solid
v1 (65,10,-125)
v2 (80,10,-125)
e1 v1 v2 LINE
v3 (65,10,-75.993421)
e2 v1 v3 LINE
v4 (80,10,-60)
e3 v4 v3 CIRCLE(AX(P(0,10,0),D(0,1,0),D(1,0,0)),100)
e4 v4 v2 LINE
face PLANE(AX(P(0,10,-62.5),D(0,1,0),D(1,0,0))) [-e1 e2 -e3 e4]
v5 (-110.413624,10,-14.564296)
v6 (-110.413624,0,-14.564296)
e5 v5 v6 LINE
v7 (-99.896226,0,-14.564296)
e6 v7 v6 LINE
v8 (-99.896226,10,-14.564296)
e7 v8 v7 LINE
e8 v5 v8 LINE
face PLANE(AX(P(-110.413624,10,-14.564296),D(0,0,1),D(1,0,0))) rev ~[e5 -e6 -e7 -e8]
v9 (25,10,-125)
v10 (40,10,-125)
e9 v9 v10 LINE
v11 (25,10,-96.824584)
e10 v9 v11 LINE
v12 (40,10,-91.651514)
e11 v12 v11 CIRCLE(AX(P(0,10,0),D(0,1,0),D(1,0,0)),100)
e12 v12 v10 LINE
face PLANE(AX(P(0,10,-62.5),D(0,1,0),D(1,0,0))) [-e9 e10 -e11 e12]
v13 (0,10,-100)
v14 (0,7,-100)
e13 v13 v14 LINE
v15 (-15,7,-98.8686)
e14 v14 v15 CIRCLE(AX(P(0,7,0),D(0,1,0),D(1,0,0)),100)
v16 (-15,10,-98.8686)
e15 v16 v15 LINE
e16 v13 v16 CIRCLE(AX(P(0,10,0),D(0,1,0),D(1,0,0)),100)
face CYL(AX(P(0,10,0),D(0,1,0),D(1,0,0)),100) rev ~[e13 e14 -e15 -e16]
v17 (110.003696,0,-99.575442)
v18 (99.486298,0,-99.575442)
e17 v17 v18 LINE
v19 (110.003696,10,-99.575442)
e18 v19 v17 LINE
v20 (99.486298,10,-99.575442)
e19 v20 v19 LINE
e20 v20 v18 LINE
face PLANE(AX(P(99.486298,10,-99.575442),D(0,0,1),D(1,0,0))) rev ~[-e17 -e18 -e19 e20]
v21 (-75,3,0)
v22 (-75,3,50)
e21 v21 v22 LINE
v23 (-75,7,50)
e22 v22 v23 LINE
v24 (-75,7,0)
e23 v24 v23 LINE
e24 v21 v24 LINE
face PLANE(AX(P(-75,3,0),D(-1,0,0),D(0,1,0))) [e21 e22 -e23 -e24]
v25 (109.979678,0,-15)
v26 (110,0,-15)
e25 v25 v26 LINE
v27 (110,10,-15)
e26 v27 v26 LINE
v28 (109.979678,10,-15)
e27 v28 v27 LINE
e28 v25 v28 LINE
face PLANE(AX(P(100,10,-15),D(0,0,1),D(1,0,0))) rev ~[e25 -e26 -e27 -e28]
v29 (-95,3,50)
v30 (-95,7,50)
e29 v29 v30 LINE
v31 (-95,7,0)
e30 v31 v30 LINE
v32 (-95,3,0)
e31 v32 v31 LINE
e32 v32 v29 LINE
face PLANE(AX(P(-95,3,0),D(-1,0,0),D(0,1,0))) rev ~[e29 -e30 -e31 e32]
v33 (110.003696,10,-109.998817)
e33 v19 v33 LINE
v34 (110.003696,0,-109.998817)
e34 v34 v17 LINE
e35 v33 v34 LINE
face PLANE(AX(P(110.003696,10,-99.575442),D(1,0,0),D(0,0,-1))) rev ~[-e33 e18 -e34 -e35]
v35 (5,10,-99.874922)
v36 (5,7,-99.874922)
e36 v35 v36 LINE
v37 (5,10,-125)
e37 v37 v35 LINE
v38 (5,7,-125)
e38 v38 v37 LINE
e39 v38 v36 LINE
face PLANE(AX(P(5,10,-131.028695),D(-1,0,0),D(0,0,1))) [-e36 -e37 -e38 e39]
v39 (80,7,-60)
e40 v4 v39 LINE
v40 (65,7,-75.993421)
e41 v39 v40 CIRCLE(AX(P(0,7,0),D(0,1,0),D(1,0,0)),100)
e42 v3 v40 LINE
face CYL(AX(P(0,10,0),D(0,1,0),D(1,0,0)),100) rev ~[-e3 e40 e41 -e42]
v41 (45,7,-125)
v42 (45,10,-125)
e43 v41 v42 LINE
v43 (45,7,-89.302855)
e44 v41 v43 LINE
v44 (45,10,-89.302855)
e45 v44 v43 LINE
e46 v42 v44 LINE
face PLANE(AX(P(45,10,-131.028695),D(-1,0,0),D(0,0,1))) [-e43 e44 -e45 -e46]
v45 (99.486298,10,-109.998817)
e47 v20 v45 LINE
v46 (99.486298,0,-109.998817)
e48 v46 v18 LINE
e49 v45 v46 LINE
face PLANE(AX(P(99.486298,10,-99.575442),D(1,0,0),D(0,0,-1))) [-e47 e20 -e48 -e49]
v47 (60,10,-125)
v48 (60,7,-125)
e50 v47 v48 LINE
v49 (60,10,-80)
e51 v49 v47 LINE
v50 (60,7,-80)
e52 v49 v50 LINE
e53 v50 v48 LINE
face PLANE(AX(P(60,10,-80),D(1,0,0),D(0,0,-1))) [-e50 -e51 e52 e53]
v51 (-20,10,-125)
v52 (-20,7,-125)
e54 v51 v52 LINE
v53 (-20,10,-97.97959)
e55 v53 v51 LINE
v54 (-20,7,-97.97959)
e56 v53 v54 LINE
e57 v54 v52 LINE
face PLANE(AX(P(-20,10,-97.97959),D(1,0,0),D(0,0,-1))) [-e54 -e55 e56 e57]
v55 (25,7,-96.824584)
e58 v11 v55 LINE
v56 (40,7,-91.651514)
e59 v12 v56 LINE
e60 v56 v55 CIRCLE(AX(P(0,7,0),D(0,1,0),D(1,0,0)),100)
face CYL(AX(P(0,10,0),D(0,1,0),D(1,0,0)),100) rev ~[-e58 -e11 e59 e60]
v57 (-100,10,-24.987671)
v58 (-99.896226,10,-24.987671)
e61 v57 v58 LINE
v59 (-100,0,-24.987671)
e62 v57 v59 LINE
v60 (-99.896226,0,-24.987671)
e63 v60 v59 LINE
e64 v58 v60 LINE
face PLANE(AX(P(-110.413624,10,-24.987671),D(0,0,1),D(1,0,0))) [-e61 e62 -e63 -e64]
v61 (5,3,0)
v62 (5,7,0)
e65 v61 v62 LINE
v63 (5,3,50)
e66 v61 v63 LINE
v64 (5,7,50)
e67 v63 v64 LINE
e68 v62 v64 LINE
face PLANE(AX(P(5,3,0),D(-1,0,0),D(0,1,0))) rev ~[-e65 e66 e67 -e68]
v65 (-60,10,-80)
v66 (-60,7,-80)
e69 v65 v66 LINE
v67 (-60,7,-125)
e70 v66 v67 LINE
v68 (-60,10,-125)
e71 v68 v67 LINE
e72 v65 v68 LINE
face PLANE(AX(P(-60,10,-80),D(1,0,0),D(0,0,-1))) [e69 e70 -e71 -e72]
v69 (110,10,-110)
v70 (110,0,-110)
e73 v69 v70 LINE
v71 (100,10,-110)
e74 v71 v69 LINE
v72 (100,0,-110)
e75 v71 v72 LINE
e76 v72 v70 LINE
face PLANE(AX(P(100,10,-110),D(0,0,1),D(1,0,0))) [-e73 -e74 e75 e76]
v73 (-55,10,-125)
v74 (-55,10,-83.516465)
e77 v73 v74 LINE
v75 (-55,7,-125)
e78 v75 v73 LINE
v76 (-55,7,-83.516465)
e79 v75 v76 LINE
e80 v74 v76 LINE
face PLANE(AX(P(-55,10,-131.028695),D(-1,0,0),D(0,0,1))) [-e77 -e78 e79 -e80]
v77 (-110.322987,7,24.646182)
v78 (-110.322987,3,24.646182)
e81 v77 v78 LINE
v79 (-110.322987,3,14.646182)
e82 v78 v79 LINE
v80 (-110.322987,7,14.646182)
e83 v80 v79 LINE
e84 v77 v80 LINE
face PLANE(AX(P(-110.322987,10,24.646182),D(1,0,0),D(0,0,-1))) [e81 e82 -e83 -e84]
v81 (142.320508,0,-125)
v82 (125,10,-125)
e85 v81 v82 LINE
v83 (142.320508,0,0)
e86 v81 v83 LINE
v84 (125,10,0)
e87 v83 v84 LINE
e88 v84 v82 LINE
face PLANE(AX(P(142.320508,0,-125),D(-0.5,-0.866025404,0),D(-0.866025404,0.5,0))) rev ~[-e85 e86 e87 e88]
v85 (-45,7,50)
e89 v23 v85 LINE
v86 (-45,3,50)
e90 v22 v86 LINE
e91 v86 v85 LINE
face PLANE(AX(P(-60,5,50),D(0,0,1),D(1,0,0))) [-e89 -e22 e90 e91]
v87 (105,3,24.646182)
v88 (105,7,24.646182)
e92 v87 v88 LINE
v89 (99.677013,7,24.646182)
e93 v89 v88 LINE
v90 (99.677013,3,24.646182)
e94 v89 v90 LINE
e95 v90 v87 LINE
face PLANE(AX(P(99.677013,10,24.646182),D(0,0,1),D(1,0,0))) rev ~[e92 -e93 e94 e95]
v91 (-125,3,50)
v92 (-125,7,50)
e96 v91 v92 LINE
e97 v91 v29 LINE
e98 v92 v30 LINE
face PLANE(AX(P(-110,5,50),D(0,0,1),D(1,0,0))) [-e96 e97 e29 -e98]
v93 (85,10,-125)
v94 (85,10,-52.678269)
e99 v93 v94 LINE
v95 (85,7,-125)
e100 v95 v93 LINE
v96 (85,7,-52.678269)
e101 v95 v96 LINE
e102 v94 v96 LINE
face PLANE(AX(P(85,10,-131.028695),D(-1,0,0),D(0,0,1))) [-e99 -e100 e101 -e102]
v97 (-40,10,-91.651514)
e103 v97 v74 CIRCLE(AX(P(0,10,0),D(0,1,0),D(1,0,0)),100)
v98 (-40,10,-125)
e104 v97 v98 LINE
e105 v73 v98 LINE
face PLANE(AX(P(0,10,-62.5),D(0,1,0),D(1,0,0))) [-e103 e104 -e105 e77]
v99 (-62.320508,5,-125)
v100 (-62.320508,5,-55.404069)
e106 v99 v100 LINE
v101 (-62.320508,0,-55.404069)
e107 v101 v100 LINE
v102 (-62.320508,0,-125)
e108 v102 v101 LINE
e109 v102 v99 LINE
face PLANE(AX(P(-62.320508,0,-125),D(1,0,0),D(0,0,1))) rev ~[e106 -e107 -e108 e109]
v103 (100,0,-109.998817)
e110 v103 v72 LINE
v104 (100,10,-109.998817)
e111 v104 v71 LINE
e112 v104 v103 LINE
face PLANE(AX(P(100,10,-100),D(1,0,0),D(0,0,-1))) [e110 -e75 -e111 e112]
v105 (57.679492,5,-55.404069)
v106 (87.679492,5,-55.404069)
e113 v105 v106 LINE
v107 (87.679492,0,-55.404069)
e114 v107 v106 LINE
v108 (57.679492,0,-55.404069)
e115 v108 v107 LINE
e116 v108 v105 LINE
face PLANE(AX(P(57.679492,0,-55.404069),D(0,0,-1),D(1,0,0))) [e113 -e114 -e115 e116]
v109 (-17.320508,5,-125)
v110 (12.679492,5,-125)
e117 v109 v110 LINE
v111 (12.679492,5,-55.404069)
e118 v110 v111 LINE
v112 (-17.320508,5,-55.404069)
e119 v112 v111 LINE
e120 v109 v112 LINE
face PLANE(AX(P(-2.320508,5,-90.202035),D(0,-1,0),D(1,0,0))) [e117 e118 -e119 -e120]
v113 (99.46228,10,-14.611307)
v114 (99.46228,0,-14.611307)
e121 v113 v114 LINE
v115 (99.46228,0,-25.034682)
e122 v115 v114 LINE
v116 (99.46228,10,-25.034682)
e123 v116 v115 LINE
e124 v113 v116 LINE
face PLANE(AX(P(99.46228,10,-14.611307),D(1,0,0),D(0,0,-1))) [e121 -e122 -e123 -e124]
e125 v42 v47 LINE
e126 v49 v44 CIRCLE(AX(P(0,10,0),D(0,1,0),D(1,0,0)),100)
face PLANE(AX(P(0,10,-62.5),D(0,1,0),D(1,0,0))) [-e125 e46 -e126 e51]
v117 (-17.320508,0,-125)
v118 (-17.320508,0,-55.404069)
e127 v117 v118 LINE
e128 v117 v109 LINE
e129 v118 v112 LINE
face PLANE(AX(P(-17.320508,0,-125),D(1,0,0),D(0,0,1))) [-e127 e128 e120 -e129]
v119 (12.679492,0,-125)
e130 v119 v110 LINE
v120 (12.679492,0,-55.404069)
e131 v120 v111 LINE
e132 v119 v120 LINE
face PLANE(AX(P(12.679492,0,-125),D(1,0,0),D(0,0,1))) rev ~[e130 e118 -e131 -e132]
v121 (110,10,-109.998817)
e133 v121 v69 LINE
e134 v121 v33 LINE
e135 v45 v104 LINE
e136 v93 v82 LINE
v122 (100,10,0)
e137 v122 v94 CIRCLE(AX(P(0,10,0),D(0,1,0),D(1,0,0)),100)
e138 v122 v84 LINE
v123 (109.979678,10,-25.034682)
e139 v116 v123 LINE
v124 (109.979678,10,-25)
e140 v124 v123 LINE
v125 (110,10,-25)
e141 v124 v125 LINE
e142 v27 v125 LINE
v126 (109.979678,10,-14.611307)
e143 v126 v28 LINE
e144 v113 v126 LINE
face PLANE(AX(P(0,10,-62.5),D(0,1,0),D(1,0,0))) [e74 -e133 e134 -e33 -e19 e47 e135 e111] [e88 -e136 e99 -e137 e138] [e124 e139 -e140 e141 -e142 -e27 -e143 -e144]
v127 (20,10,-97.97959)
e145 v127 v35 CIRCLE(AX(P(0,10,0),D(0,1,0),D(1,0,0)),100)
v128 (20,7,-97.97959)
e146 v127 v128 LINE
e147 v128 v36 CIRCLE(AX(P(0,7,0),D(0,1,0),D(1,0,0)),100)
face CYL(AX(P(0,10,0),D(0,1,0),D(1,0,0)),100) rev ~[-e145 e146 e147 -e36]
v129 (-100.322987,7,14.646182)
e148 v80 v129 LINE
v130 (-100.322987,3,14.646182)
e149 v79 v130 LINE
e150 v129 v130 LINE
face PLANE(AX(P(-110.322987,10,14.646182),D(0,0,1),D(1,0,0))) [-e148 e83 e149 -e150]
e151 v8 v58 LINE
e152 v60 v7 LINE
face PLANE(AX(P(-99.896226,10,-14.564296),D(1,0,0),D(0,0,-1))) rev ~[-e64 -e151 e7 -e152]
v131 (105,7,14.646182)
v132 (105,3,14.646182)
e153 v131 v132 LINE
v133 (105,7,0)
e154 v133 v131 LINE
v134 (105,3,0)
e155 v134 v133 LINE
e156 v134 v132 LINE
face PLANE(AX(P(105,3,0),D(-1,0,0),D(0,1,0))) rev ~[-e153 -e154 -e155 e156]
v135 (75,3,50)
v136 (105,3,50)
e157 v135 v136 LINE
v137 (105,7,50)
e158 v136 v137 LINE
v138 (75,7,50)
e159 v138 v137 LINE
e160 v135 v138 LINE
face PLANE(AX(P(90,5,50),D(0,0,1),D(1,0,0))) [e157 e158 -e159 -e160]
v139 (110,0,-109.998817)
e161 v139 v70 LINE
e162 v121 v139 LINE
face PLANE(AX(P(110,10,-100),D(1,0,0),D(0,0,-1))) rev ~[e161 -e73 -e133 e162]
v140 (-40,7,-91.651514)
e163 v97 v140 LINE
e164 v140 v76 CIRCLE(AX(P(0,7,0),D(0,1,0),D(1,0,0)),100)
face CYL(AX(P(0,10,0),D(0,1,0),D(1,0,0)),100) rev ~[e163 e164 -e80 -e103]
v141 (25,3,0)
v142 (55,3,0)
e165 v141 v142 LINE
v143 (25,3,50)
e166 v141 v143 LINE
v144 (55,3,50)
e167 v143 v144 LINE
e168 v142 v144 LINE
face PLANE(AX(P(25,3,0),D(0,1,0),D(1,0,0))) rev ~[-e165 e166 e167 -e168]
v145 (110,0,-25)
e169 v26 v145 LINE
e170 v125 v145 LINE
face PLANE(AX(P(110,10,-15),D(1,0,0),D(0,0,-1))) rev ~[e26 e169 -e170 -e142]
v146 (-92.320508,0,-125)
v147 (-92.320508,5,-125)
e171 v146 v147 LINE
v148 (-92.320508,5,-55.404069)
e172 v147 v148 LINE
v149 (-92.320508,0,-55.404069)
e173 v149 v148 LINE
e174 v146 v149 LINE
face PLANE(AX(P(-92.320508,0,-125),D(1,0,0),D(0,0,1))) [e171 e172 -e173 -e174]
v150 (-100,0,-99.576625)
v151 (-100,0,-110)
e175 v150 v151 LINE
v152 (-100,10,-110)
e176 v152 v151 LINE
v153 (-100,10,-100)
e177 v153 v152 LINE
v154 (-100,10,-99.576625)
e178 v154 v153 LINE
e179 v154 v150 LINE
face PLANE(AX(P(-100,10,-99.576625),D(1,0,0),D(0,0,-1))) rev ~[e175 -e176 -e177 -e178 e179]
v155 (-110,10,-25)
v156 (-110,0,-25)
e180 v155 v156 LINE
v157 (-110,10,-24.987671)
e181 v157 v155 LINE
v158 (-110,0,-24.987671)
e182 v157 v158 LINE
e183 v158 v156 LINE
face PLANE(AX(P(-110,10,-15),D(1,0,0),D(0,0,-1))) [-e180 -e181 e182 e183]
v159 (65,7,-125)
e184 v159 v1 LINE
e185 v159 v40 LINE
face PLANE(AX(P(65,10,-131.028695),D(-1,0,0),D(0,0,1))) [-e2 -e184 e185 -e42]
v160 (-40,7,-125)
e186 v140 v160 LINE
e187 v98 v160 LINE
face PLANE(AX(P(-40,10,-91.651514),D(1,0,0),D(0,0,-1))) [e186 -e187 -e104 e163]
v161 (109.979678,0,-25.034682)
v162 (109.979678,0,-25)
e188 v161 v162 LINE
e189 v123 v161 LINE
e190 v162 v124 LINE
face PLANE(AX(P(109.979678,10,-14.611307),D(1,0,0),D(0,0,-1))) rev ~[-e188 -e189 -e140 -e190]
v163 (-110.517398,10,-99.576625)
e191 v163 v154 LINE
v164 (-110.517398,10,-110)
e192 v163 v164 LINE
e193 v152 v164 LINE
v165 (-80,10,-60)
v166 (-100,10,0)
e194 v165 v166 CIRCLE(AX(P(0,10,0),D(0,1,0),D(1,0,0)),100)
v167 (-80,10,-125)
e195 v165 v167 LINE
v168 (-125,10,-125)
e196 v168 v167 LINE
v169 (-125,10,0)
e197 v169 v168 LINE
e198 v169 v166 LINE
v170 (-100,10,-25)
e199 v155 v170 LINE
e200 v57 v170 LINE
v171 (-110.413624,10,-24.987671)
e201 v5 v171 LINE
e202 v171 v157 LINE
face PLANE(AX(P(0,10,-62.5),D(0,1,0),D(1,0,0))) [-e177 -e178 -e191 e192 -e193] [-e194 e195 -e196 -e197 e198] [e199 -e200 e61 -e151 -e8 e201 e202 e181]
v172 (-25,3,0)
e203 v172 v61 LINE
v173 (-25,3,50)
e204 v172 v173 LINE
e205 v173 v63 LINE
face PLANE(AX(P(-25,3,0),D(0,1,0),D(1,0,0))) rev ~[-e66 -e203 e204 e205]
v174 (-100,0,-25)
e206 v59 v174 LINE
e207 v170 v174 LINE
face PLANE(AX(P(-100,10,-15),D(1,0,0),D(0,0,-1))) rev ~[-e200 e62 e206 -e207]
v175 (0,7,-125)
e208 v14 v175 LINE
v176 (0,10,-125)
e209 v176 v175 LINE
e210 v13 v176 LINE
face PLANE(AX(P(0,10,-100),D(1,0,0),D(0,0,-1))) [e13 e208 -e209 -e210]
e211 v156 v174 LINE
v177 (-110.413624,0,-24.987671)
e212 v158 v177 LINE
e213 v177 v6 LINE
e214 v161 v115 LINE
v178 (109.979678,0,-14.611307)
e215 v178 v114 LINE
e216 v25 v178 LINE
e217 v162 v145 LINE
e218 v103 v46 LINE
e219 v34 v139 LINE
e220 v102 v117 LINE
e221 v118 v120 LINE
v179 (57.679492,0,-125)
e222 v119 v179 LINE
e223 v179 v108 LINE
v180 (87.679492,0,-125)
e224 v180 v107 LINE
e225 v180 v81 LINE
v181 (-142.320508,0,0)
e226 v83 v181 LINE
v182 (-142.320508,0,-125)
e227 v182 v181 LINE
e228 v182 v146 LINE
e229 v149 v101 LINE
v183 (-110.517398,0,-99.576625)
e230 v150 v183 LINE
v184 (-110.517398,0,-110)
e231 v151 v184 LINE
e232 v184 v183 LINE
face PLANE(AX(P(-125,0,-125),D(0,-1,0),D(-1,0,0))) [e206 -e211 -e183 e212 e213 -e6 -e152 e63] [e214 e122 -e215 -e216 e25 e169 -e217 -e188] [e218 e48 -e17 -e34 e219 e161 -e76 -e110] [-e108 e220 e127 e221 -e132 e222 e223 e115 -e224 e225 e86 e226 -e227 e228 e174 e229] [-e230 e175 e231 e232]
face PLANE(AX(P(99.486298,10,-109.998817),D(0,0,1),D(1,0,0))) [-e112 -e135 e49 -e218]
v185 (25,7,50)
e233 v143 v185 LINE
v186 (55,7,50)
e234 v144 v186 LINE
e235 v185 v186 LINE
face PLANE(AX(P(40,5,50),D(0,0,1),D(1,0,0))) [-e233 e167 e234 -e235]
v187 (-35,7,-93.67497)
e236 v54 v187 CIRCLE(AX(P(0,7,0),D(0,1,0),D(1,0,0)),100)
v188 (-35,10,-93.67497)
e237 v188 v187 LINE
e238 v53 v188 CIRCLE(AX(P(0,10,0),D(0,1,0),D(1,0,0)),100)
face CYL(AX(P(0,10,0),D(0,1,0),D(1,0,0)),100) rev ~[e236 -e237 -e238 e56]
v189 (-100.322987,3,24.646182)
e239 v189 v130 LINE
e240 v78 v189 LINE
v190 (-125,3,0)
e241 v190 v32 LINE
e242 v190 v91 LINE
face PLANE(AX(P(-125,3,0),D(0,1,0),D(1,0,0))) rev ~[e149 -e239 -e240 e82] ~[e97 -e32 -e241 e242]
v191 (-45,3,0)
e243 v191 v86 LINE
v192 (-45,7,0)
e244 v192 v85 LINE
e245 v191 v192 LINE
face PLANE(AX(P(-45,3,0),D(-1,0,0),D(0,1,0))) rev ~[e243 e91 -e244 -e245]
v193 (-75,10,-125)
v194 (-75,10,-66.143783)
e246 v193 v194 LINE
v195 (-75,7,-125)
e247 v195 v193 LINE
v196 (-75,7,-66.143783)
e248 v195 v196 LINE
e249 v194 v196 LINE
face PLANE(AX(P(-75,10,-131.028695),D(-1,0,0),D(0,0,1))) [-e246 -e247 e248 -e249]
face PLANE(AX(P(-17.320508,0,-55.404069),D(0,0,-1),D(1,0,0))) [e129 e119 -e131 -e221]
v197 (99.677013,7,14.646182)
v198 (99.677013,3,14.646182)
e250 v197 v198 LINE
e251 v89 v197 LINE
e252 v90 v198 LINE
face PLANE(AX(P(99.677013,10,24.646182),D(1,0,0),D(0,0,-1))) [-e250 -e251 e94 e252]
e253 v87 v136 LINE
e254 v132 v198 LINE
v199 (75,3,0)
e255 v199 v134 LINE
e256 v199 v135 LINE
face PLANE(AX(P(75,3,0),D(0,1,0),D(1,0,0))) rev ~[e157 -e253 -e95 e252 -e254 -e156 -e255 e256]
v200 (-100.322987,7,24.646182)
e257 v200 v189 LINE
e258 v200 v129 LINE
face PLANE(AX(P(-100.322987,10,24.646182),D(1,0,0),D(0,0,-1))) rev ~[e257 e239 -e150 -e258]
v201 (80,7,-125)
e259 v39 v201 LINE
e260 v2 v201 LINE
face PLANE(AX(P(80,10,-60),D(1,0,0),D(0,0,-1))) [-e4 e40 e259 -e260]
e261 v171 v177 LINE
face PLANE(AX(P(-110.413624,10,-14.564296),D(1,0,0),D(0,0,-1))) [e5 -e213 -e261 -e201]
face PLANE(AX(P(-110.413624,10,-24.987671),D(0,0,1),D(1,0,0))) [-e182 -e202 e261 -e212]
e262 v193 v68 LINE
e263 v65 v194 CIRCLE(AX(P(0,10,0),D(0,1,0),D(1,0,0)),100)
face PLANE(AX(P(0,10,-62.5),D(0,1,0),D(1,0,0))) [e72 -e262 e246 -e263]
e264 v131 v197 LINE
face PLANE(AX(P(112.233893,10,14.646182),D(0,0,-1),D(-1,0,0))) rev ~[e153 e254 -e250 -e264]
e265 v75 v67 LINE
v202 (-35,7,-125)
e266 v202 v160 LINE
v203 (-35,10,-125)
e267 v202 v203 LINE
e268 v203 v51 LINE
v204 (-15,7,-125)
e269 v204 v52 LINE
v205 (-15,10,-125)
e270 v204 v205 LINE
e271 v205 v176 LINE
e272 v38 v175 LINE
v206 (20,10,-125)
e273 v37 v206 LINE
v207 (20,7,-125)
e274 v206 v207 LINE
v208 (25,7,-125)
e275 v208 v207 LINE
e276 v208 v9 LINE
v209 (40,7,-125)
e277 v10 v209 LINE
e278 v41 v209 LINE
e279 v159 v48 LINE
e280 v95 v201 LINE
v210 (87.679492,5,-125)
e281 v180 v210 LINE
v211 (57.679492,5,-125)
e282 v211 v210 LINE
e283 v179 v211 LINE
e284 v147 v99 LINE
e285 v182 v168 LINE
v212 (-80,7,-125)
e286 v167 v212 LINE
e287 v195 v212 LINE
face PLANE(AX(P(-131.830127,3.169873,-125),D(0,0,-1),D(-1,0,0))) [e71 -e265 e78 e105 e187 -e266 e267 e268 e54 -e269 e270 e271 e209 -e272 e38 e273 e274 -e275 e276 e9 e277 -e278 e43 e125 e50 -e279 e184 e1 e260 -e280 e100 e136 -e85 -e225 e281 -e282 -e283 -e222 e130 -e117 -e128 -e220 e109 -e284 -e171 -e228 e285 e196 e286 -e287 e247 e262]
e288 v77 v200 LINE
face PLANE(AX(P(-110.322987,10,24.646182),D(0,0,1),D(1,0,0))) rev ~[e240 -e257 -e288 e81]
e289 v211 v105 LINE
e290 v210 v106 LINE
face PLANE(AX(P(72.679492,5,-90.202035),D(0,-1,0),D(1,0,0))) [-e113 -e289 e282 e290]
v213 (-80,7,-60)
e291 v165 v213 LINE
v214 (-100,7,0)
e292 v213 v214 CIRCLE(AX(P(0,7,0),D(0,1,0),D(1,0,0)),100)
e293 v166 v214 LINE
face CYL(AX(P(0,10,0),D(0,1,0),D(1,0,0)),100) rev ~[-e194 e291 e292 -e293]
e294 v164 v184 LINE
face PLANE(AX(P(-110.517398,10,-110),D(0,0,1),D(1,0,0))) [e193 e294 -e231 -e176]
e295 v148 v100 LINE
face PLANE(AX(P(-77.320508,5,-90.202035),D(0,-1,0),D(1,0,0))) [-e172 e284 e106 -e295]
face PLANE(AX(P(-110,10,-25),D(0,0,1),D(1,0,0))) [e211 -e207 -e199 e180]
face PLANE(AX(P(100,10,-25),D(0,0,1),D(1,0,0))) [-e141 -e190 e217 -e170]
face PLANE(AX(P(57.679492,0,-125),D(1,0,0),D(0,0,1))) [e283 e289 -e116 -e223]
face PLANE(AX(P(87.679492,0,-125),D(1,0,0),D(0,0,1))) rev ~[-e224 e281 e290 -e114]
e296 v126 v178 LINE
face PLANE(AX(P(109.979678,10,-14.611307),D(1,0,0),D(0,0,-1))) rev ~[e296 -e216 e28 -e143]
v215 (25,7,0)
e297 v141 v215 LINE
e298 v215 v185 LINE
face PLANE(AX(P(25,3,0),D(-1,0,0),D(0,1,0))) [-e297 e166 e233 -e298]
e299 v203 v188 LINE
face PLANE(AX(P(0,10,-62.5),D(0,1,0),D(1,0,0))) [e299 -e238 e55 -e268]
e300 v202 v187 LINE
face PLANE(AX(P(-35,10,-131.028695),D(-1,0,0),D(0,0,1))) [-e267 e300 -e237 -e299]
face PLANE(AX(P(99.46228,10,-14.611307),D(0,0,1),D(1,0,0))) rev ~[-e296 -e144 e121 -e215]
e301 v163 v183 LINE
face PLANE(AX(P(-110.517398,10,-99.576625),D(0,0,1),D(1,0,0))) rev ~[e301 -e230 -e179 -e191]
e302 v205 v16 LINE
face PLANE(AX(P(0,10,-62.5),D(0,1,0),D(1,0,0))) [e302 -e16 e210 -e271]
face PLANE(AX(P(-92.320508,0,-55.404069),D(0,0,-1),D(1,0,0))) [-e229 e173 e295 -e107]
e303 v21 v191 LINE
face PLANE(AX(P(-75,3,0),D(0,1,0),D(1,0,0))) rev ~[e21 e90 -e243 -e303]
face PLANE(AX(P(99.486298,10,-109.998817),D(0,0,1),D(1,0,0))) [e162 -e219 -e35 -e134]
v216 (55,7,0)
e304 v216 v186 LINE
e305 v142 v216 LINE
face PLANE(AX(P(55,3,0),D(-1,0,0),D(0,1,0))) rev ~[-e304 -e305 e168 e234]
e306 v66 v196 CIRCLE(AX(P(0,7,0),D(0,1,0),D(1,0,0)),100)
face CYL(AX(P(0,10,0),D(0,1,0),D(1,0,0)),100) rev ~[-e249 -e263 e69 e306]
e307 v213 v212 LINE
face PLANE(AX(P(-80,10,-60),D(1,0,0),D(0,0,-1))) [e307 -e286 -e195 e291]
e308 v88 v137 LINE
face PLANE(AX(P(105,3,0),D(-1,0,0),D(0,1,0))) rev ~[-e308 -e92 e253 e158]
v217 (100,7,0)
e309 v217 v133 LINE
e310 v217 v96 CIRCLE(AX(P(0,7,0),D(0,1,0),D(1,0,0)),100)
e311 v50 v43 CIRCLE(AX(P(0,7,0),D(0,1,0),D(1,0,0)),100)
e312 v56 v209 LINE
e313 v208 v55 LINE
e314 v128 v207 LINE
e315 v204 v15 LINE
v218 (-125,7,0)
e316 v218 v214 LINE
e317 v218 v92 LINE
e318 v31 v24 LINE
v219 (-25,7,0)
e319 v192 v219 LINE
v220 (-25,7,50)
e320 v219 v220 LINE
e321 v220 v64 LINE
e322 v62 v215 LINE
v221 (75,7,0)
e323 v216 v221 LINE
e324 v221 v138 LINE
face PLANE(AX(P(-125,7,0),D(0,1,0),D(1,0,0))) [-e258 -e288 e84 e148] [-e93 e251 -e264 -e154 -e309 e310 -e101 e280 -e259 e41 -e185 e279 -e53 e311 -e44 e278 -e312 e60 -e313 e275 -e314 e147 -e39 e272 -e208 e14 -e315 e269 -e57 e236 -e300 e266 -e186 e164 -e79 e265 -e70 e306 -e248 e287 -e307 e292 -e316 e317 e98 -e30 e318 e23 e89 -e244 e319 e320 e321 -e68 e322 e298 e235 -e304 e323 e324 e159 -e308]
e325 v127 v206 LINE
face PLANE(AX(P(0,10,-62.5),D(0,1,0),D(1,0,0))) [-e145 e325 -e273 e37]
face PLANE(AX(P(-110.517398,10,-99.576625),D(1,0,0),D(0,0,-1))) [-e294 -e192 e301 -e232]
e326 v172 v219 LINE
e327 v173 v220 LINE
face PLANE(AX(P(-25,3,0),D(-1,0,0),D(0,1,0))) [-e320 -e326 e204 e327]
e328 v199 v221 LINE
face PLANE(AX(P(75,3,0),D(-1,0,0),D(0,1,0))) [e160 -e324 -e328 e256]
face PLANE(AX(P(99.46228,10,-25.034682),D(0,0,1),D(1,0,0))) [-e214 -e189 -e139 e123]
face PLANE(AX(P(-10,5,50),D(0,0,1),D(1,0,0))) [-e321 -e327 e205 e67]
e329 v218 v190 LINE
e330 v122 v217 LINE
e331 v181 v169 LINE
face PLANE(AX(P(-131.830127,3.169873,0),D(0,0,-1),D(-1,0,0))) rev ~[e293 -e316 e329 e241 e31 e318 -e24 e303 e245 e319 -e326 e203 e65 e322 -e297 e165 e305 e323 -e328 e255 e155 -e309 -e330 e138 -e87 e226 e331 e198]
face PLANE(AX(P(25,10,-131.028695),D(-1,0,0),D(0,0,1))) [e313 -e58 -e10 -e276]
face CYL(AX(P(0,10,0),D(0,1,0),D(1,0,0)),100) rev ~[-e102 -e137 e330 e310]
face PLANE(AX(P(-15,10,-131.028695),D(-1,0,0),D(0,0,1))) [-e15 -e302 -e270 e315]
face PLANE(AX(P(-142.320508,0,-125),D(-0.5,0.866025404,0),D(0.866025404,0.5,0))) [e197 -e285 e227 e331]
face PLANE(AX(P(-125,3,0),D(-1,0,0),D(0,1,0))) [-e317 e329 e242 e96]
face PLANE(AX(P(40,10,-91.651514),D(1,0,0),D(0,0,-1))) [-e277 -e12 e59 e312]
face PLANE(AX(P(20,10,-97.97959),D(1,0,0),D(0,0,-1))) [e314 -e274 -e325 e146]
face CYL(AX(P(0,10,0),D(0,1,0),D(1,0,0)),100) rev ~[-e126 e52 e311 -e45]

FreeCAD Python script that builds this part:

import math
import FreeCAD as App
import Part
import Sketcher

V = App.Vector
Q = App.Units.Quantity


def add_polygon(sketch, points):
    """Adds a closed chain of lines whose ends are joined by coincident constraints."""
    first, n = sketch.GeometryCount, len(points)
    for a, b in zip(points, points[1:] + points[:1]):
        sketch.addGeometry(Part.LineSegment(App.Vector(*a, 0), App.Vector(*b, 0)), False)
    for i in range(n):
        sketch.addConstraint(Sketcher.Constraint("Coincident", first + i, 2, first + (i + 1) % n, 1))

doc = App.newDocument("Part")
body = doc.addObject("PartDesign::Body", "Body")

# Sketch on XZ plane
sketch1 = body.newObject("Sketcher::SketchObject", "Sketch")
sketch1.AttachmentSupport = (doc.getObject("XZ_Plane"), [""])
sketch1.MapMode = "FlatFace"
add_polygon(sketch1, [(-125, -125), (-125, 0), (125, 0), (125, -125)])  # lines 0-3
sketch1.addConstraint(Sketcher.Constraint("Vertical", 0))
sketch1.addConstraint(Sketcher.Constraint("Horizontal", 1))
sketch1.addConstraint(Sketcher.Constraint("Vertical", 2))
sketch1.addConstraint(Sketcher.Constraint("Horizontal", 3))
sketch1.addConstraint(Sketcher.Constraint("Symmetric", 0, 2, 1, 2, -1, 1))
sketch1.addConstraint(Sketcher.Constraint("DistanceX", 1, 1, 1, 2, 250.0))
sketch1.addConstraint(Sketcher.Constraint("DistanceY", 0, 1, 0, 2, 125.0))
pad1 = body.newObject("PartDesign::Pad", "Pad")
pad1.Profile = sketch1
pad1.Length = 10
pad1.Reversed = True

# Sketch on XZ plane
sketch2 = body.newObject("Sketcher::SketchObject", "Sketch001")
sketch2.AttachmentSupport = (doc.getObject("XZ_Plane"), [""])
sketch2.MapMode = "FlatFace"
sketch2.AttachmentOffset = App.Placement(V(0, 0, -10), App.Rotation())
add_polygon(sketch2, [(-110, -110), (-110, -100), (-100, -100), (-100, -110)])  # lines 0-3
add_polygon(sketch2, [(-110, -25), (-110, -15), (-100, -15), (-100, -25)])  # lines 4-7
add_polygon(sketch2, [(100, -110), (100, -100), (110, -100), (110, -110)])  # lines 8-11
add_polygon(sketch2, [(100, -25), (100, -15), (110, -15), (110, -25)])  # lines 12-15
sketch2.addConstraint(Sketcher.Constraint("Vertical", 0))
sketch2.addConstraint(Sketcher.Constraint("Horizontal", 1))
sketch2.addConstraint(Sketcher.Constraint("Vertical", 2))
sketch2.addConstraint(Sketcher.Constraint("Horizontal", 3))
sketch2.addConstraint(Sketcher.Constraint("Vertical", 4))
sketch2.addConstraint(Sketcher.Constraint("Horizontal", 5))
sketch2.addConstraint(Sketcher.Constraint("Vertical", 6))
sketch2.addConstraint(Sketcher.Constraint("Horizontal", 7))
sketch2.addConstraint(Sketcher.Constraint("Vertical", 8))
sketch2.addConstraint(Sketcher.Constraint("Horizontal", 9))
sketch2.addConstraint(Sketcher.Constraint("Vertical", 10))
sketch2.addConstraint(Sketcher.Constraint("Horizontal", 11))
sketch2.addConstraint(Sketcher.Constraint("Vertical", 12))
sketch2.addConstraint(Sketcher.Constraint("Horizontal", 13))
sketch2.addConstraint(Sketcher.Constraint("Vertical", 14))
sketch2.addConstraint(Sketcher.Constraint("Horizontal", 15))
sketch2.addConstraint(Sketcher.Constraint("Symmetric", 1, 2, 8, 2, -2))
sketch2.addConstraint(Sketcher.Constraint("Symmetric", 3, 2, 10, 2, -2))
sketch2.addConstraint(Sketcher.Constraint("Symmetric", 5, 2, 12, 2, -2))
sketch2.addConstraint(Sketcher.Constraint("Symmetric", 7, 2, 14, 2, -2))
sketch2.addConstraint(Sketcher.Constraint("Vertical", 3, 2, 4, 2))
sketch2.addConstraint(Sketcher.Constraint("Vertical", 2, 2, 5, 2))
sketch2.addConstraint(Sketcher.Constraint("Equal", 15, 0))
sketch2.addConstraint(Sketcher.Constraint("Equal", 2, 4))
sketch2.addConstraint(Sketcher.Constraint("DistanceX", 1, 1, 1, 2, 10.0))
sketch2.addConstraint(Sketcher.Constraint("DistanceX", 0, 2, -1, 1, 110.0))
sketch2.addConstraint(Sketcher.Constraint("DistanceY", 0, 2, -1, 1, 100.0))
sketch2.addConstraint(Sketcher.Constraint("DistanceY", 4, 2, -1, 1, 15.0))
pocket1 = body.newObject("PartDesign::Pocket", "Pocket")
pocket1.Profile = sketch2
pocket1.Length = 10
pocket1.Reversed = True

# Sketch on XZ plane
sketch3 = body.newObject("Sketcher::SketchObject", "Sketch002")
sketch3.AttachmentSupport = (doc.getObject("XZ_Plane"), [""])
sketch3.MapMode = "FlatFace"
sketch3.AttachmentOffset = App.Placement(V(0, 0, -10), App.Rotation())
sketch3.addGeometry(Part.LineSegment(V(-100, 0, 0), V(100, 0, 0)), False)
sketch3.addGeometry(Part.ArcOfCircle(Part.Circle(V(0, 0, 0), V(0, 0, 1), 100), math.radians(180), math.radians(360)), False)
sketch3.addConstraint(Sketcher.Constraint("Coincident", 0, 1, 1, 1))
sketch3.addConstraint(Sketcher.Constraint("Coincident", 1, 2, 0, 2))
sketch3.addConstraint(Sketcher.Constraint("Horizontal", 0))
sketch3.addConstraint(Sketcher.Constraint("Coincident", 1, 3, -1, 1))
sketch3.addConstraint(Sketcher.Constraint("PointOnObject", 0, 1, -1))
sketch3.addConstraint(Sketcher.Constraint("Radius", 1, 100.0))
pocket2 = body.newObject("PartDesign::Pocket", "Pocket001")
pocket2.Profile = sketch3
pocket2.Length = 3
pocket2.Reversed = True

# Sketch on XY plane
sketch4 = body.newObject("Sketcher::SketchObject", "Sketch003")
sketch4.AttachmentSupport = (doc.getObject("XY_Plane"), [""])
sketch4.MapMode = "FlatFace"
add_polygon(sketch4, [(-125, 7), (-125, 3), (-95, 3), (-95, 7)])  # lines 0-3
add_polygon(sketch4, [(-75, 7), (-75, 3), (-45, 3), (-45, 7)])  # lines 4-7
add_polygon(sketch4, [(-25, 7), (-25, 3), (5, 3), (5, 7)])  # lines 8-11
add_polygon(sketch4, [(25, 7), (25, 3), (55, 3), (55, 7)])  # lines 12-15
add_polygon(sketch4, [(75, 7), (75, 3), (105, 3), (105, 7)])  # lines 16-19
sketch4.addConstraint(Sketcher.Constraint("Vertical", 0))
sketch4.addConstraint(Sketcher.Constraint("Horizontal", 1))
sketch4.addConstraint(Sketcher.Constraint("Vertical", 2))
sketch4.addConstraint(Sketcher.Constraint("Horizontal", 3))
sketch4.addConstraint(Sketcher.Constraint("Vertical", 4))
sketch4.addConstraint(Sketcher.Constraint("Horizontal", 5))
sketch4.addConstraint(Sketcher.Constraint("Vertical", 6))
sketch4.addConstraint(Sketcher.Constraint("Horizontal", 7))
sketch4.addConstraint(Sketcher.Constraint("Vertical", 8))
sketch4.addConstraint(Sketcher.Constraint("Horizontal", 9))
sketch4.addConstraint(Sketcher.Constraint("Vertical", 10))
sketch4.addConstraint(Sketcher.Constraint("Horizontal", 11))
sketch4.addConstraint(Sketcher.Constraint("Vertical", 12))
sketch4.addConstraint(Sketcher.Constraint("Horizontal", 13))
sketch4.addConstraint(Sketcher.Constraint("Vertical", 14))
sketch4.addConstraint(Sketcher.Constraint("Horizontal", 15))
sketch4.addConstraint(Sketcher.Constraint("Vertical", 16))
sketch4.addConstraint(Sketcher.Constraint("Horizontal", 17))
sketch4.addConstraint(Sketcher.Constraint("Vertical", 18))
sketch4.addConstraint(Sketcher.Constraint("Horizontal", 19))
sketch4.addConstraint(Sketcher.Constraint("Symmetric", 8, 2, 12, 2, -2))
sketch4.addConstraint(Sketcher.Constraint("Symmetric", 4, 2, 16, 2, -2))
sketch4.addConstraint(Sketcher.Constraint("Horizontal", 1, 2, 4, 2))
sketch4.addConstraint(Sketcher.Constraint("Horizontal", 3, 2, 6, 2))
sketch4.addConstraint(Sketcher.Constraint("Horizontal", 5, 2, 8, 2))
sketch4.addConstraint(Sketcher.Constraint("Horizontal", 7, 2, 10, 2))
sketch4.addConstraint(Sketcher.Constraint("Horizontal", 11, 2, 14, 2))
sketch4.addConstraint(Sketcher.Constraint("Horizontal", 15, 2, 18, 2))
sketch4.addConstraint(Sketcher.Constraint("Equal", 3, 5))
sketch4.addConstraint(Sketcher.Constraint("Equal", 7, 9))
sketch4.addConstraint(Sketcher.Constraint("Equal", 11, 13))
sketch4.addConstraint(Sketcher.Constraint("Equal", 15, 17))
sketch4.addConstraint(Sketcher.Constraint("DistanceX", 1, 1, 1, 2, 30.0))
sketch4.addConstraint(Sketcher.Constraint("DistanceY", 0, 2, 0, 1, 4.0))
sketch4.addConstraint(Sketcher.Constraint("DistanceX", 0, 2, -1, 1, 125.0))
sketch4.addConstraint(Sketcher.Constraint("DistanceY", -1, 1, 0, 2, 3.0))
sketch4.addConstraint(Sketcher.Constraint("DistanceX", 4, 2, -1, 1, 75.0))
sketch4.addConstraint(Sketcher.Constraint("DistanceX", 8, 2, -1, 1, 25.0))
pad2 = body.newObject("PartDesign::Pad", "Pad001")
pad2.Profile = sketch4
pad2.Length = 50

# Sketch on XZ plane
sketch5 = body.newObject("Sketcher::SketchObject", "Sketch004")
sketch5.AttachmentSupport = (doc.getObject("XZ_Plane"), [""])
sketch5.MapMode = "FlatFace"
sketch5.AttachmentOffset = App.Placement(V(0, 0, -10), App.Rotation())
add_polygon(sketch5, [(112.233893, 14.646182), (99.677013, 14.646182), (99.677013, 24.646182), (112.233893, 24.646182)])  # lines 0-3
add_polygon(sketch5, [(-110.322987, 14.646182), (-110.322987, 24.646182), (-100.322987, 24.646182), (-100.322987, 14.646182)])  # lines 4-7
sketch5.addConstraint(Sketcher.Constraint("Horizontal", 0))
sketch5.addConstraint(Sketcher.Constraint("Vertical", 1))
sketch5.addConstraint(Sketcher.Constraint("Horizontal", 2))
sketch5.addConstraint(Sketcher.Constraint("Vertical", 3))
sketch5.addConstraint(Sketcher.Constraint("Vertical", 4))
sketch5.addConstraint(Sketcher.Constraint("Horizontal", 5))
sketch5.addConstraint(Sketcher.Constraint("Vertical", 6))
sketch5.addConstraint(Sketcher.Constraint("Horizontal", 7))
sketch5.addConstraint(Sketcher.Constraint("Horizontal", 2, 2, 4, 2))
sketch5.addConstraint(Sketcher.Constraint("Horizontal", 3, 2, 6, 2))
sketch5.addConstraint(Sketcher.Constraint("Equal", 7, 1))
sketch5.addConstraint(Sketcher.Constraint("DistanceX", 5, 1, 5, 2, 10.0))
sketch5.addConstraint(Sketcher.Constraint("DistanceX", 4, 2, 1, 2, 210.0))
sketch5.addConstraint(Sketcher.Constraint("DistanceX", 0, 2, 0, 1, 12.55688))
sketch5.addConstraint(Sketcher.Constraint("DistanceY", -1, 1, 0, 2, 14.646182))
sketch5.addConstraint(Sketcher.Constraint("DistanceX", -1, 1, 0, 2, 99.677013))
pocket3 = body.newObject("PartDesign::Pocket", "Pocket002")
pocket3.Profile = sketch5
pocket3.Length = 10
pocket3.Reversed = True

# Sketch on XZ plane
sketch6 = body.newObject("Sketcher::SketchObject", "Sketch005")
sketch6.AttachmentSupport = (doc.getObject("XZ_Plane"), [""])
sketch6.MapMode = "FlatFace"
sketch6.AttachmentOffset = App.Placement(V(0, 0, -10), App.Rotation())
sketch6.addGeometry(Part.LineSegment(V(-75, -131.028695, 0), V(-80, -131.028695, 0)), False)
sketch6.addGeometry(Part.LineSegment(V(-80, -131.028695, 0), V(-80, -60, 0)), False)
sketch6.addGeometry(Part.ArcOfCircle(Part.Circle(V(0, 0, 0), V(0, 0, 1), 100), math.radians(-143.130102), math.radians(-138.590378)), False)
sketch6.addGeometry(Part.LineSegment(V(-75, -66.143783, 0), V(-75, -131.028695, 0)), False)
sketch6.addGeometry(Part.LineSegment(V(85, -52.678269, 0), V(85, -131.028695, 0)), False)
sketch6.addGeometry(Part.LineSegment(V(85, -131.028695, 0), V(80, -131.028695, 0)), False)
sketch6.addGeometry(Part.LineSegment(V(80, -131.028695, 0), V(80, -60, 0)), False)
sketch6.addGeometry(Part.ArcOfCircle(Part.Circle(V(0, 0, 0), V(0, 0, 1), 100), math.radians(-36.869898), math.radians(-31.788331)), False)
sketch6.addGeometry(Part.LineSegment(V(65, -75.993421, 0), V(65, -131.028695, 0)), False)
sketch6.addGeometry(Part.LineSegment(V(65, -131.028695, 0), V(60, -131.028695, 0)), False)
sketch6.addGeometry(Part.LineSegment(V(60, -131.028695, 0), V(60, -80, 0)), False)
sketch6.addGeometry(Part.ArcOfCircle(Part.Circle(V(0, 0, 0), V(0, 0, 1), 100.000001), math.radians(-53.130102), math.radians(-49.458398)), False)
sketch6.addGeometry(Part.LineSegment(V(45, -89.302855, 0), V(45, -131.028695, 0)), False)
sketch6.addGeometry(Part.LineSegment(V(45, -131.028695, 0), V(40, -131.028695, 0)), False)
sketch6.addGeometry(Part.LineSegment(V(40, -131.028695, 0), V(40, -91.651514, 0)), False)
sketch6.addGeometry(Part.ArcOfCircle(Part.Circle(V(0, 0, 0), V(0, 0, 1), 100), math.radians(-66.421822), math.radians(-63.256316)), False)
sketch6.addGeometry(Part.LineSegment(V(25, -96.824584, 0), V(25, -131.028695, 0)), False)
sketch6.addGeometry(Part.LineSegment(V(25, -131.028695, 0), V(20, -131.028695, 0)), False)
sketch6.addGeometry(Part.LineSegment(V(20, -131.028695, 0), V(20, -97.97959, 0)), False)
sketch6.addGeometry(Part.ArcOfCircle(Part.Circle(V(0.000001, -0.000002, 0), V(0, 0, 1), 99.999997), math.radians(-78.463041), math.radians(-75.522488)), False)
sketch6.addGeometry(Part.LineSegment(V(5, -99.874922, 0), V(5, -131.028695, 0)), False)
sketch6.addGeometry(Part.LineSegment(V(5, -131.028695, 0), V(0, -131.028695, 0)), False)
sketch6.addGeometry(Part.LineSegment(V(0, -131.028695, 0), V(0, -100, 0)), False)
sketch6.addGeometry(Part.ArcOfCircle(Part.Circle(V(0, -0.000001, 0), V(0, 0, 1), 99.999999), math.radians(-90), math.radians(-87.134016)), False)
sketch6.addGeometry(Part.LineSegment(V(-15, -98.8686, 0), V(-15, -131.028695, 0)), False)
sketch6.addGeometry(Part.LineSegment(V(-15, -131.028695, 0), V(-20, -131.028695, 0)), False)
sketch6.addGeometry(Part.LineSegment(V(-20, -131.028695, 0), V(-20, -97.97959, 0)), False)
sketch6.addGeometry(Part.ArcOfCircle(Part.Circle(V(0, -0.000001, 0), V(0, 0, 1), 99.999999), math.radians(-101.536959), math.radians(-98.626927)), False)
sketch6.addGeometry(Part.LineSegment(V(-35, -93.67497, 0), V(-35, -131.028695, 0)), False)
sketch6.addGeometry(Part.LineSegment(V(-35, -131.028695, 0), V(-40, -131.028695, 0)), False)
sketch6.addGeometry(Part.LineSegment(V(-40, -131.028695, 0), V(-40, -91.651514, 0)), False)
sketch6.addGeometry(Part.ArcOfCircle(Part.Circle(V(0, 0, 0), V(0, 0, 1), 100), math.radians(-113.578178), math.radians(-110.487315)), False)
sketch6.addGeometry(Part.LineSegment(V(-55, -83.516465, 0), V(-55, -131.028695, 0)), False)
sketch6.addGeometry(Part.LineSegment(V(-55, -131.028695, 0), V(-60, -131.028695, 0)), False)
sketch6.addGeometry(Part.LineSegment(V(-60, -131.028695, 0), V(-60, -80, 0)), False)
sketch6.addGeometry(Part.ArcOfCircle(Part.Circle(V(0, 0, 0), V(0, 0, 1), 99.999999), math.radians(-126.869898), math.radians(-123.367013)), False)
sketch6.addConstraint(Sketcher.Constraint("Coincident", 0, 2, 1, 1))
sketch6.addConstraint(Sketcher.Constraint("Coincident", 1, 2, 2, 1))
sketch6.addConstraint(Sketcher.Constraint("Coincident", 2, 2, 3, 1))
sketch6.addConstraint(Sketcher.Constraint("Coincident", 3, 2, 0, 1))
sketch6.addConstraint(Sketcher.Constraint("Coincident", 4, 2, 5, 1))
sketch6.addConstraint(Sketcher.Constraint("Coincident", 5, 2, 6, 1))
sketch6.addConstraint(Sketcher.Constraint("Coincident", 6, 2, 7, 1))
sketch6.addConstraint(Sketcher.Constraint("Coincident", 7, 2, 4, 1))
sketch6.addConstraint(Sketcher.Constraint("Coincident", 8, 2, 9, 1))
sketch6.addConstraint(Sketcher.Constraint("Coincident", 9, 2, 10, 1))
sketch6.addConstraint(Sketcher.Constraint("Coincident", 10, 2, 11, 1))
sketch6.addConstraint(Sketcher.Constraint("Coincident", 11, 2, 8, 1))
sketch6.addConstraint(Sketcher.Constraint("Coincident", 12, 2, 13, 1))
sketch6.addConstraint(Sketcher.Constraint("Coincident", 13, 2, 14, 1))
sketch6.addConstraint(Sketcher.Constraint("Coincident", 14, 2, 15, 1))
sketch6.addConstraint(Sketcher.Constraint("Coincident", 15, 2, 12, 1))
sketch6.addConstraint(Sketcher.Constraint("Coincident", 16, 2, 17, 1))
sketch6.addConstraint(Sketcher.Constraint("Coincident", 17, 2, 18, 1))
sketch6.addConstraint(Sketcher.Constraint("Coincident", 18, 2, 19, 1))
sketch6.addConstraint(Sketcher.Constraint("Coincident", 19, 2, 16, 1))
sketch6.addConstraint(Sketcher.Constraint("Coincident", 20, 2, 21, 1))
sketch6.addConstraint(Sketcher.Constraint("Coincident", 21, 2, 22, 1))
sketch6.addConstraint(Sketcher.Constraint("Coincident", 22, 2, 23, 1))
sketch6.addConstraint(Sketcher.Constraint("Coincident", 23, 2, 20, 1))
sketch6.addConstraint(Sketcher.Constraint("Coincident", 24, 2, 25, 1))
sketch6.addConstraint(Sketcher.Constraint("Coincident", 25, 2, 26, 1))
sketch6.addConstraint(Sketcher.Constraint("Coincident", 26, 2, 27, 1))
sketch6.addConstraint(Sketcher.Constraint("Coincident", 27, 2, 24, 1))
sketch6.addConstraint(Sketcher.Constraint("Coincident", 28, 2, 29, 1))
sketch6.addConstraint(Sketcher.Constraint("Coincident", 29, 2, 30, 1))
sketch6.addConstraint(Sketcher.Constraint("Coincident", 30, 2, 31, 1))
sketch6.addConstraint(Sketcher.Constraint("Coincident", 31, 2, 28, 1))
sketch6.addConstraint(Sketcher.Constraint("Coincident", 32, 2, 33, 1))
sketch6.addConstraint(Sketcher.Constraint("Coincident", 33, 2, 34, 1))
sketch6.addConstraint(Sketcher.Constraint("Coincident", 34, 2, 35, 1))
sketch6.addConstraint(Sketcher.Constraint("Coincident", 35, 2, 32, 1))
sketch6.addConstraint(Sketcher.Constraint("Horizontal", 0))
sketch6.addConstraint(Sketcher.Constraint("Vertical", 1))
sketch6.addConstraint(Sketcher.Constraint("Vertical", 3))
sketch6.addConstraint(Sketcher.Constraint("Vertical", 4))
sketch6.addConstraint(Sketcher.Constraint("Horizontal", 5))
sketch6.addConstraint(Sketcher.Constraint("Vertical", 6))
sketch6.addConstraint(Sketcher.Constraint("Vertical", 8))
sketch6.addConstraint(Sketcher.Constraint("Horizontal", 9))
sketch6.addConstraint(Sketcher.Constraint("Vertical", 10))
sketch6.addConstraint(Sketcher.Constraint("Vertical", 12))
sketch6.addConstraint(Sketcher.Constraint("Horizontal", 13))
sketch6.addConstraint(Sketcher.Constraint("Vertical", 14))
sketch6.addConstraint(Sketcher.Constraint("Vertical", 16))
sketch6.addConstraint(Sketcher.Constraint("Horizontal", 17))
sketch6.addConstraint(Sketcher.Constraint("Vertical", 18))
sketch6.addConstraint(Sketcher.Constraint("Vertical", 20))
sketch6.addConstraint(Sketcher.Constraint("Horizontal", 21))
sketch6.addConstraint(Sketcher.Constraint("Vertical", 22))
sketch6.addConstraint(Sketcher.Constraint("Vertical", 24))
sketch6.addConstraint(Sketcher.Constraint("Horizontal", 25))
sketch6.addConstraint(Sketcher.Constraint("Vertical", 26))
sketch6.addConstraint(Sketcher.Constraint("Vertical", 28))
sketch6.addConstraint(Sketcher.Constraint("Horizontal", 29))
sketch6.addConstraint(Sketcher.Constraint("Vertical", 30))
sketch6.addConstraint(Sketcher.Constraint("Vertical", 32))
sketch6.addConstraint(Sketcher.Constraint("Horizontal", 33))
sketch6.addConstraint(Sketcher.Constraint("Vertical", 34))
sketch6.addConstraint(Sketcher.Constraint("Coincident", 2, 3, -1, 1))
sketch6.addConstraint(Sketcher.Constraint("Coincident", 7, 3, -1, 1))
sketch6.addConstraint(Sketcher.Constraint("Coincident", 11, 3, -1, 1))
sketch6.addConstraint(Sketcher.Constraint("Coincident", 15, 3, -1, 1))
sketch6.addConstraint(Sketcher.Constraint("Coincident", 19, 3, -1, 1))
sketch6.addConstraint(Sketcher.Constraint("Coincident", 23, 3, -1, 1))
sketch6.addConstraint(Sketcher.Constraint("Coincident", 27, 3, -1, 1))
sketch6.addConstraint(Sketcher.Constraint("Coincident", 31, 3, -1, 1))
sketch6.addConstraint(Sketcher.Constraint("Coincident", 35, 3, -1, 1))
sketch6.addConstraint(Sketcher.Constraint("Equal", 2, 7))
sketch6.addConstraint(Sketcher.Constraint("Equal", 7, 11))
sketch6.addConstraint(Sketcher.Constraint("Equal", 11, 15))
sketch6.addConstraint(Sketcher.Constraint("Equal", 19, 23))
sketch6.addConstraint(Sketcher.Constraint("Equal", 23, 27))
sketch6.addConstraint(Sketcher.Constraint("Equal", 27, 31))
sketch6.addConstraint(Sketcher.Constraint("Equal", 31, 35))
sketch6.addConstraint(Sketcher.Constraint("Symmetric", 0, 2, 5, 2, -2))
sketch6.addConstraint(Sketcher.Constraint("Symmetric", 17, 2, 25, 2, -2))
sketch6.addConstraint(Sketcher.Constraint("Symmetric", 13, 2, 29, 2, -2))
sketch6.addConstraint(Sketcher.Constraint("Symmetric", 9, 2, 33, 2, -2))
sketch6.addConstraint(Sketcher.Constraint("PointOnObject", 21, 2, -2))
sketch6.addConstraint(Sketcher.Constraint("Horizontal", 5, 2, 8, 2))
sketch6.addConstraint(Sketcher.Constraint("Horizontal", 9, 2, 12, 2))
sketch6.addConstraint(Sketcher.Constraint("Horizontal", 13, 2, 16, 2))
sketch6.addConstraint(Sketcher.Constraint("Horizontal", 17, 2, 20, 2))
sketch6.addConstraint(Sketcher.Constraint("Horizontal", 14, 2, 30, 2))
sketch6.addConstraint(Sketcher.Constraint("Equal", 0, 5))
sketch6.addConstraint(Sketcher.Constraint("Equal", 5, 9))
sketch6.addConstraint(Sketcher.Constraint("Equal", 9, 13))
sketch6.addConstraint(Sketcher.Constraint("Equal", 13, 17))
sketch6.addConstraint(Sketcher.Constraint("Equal", 17, 21))
sketch6.addConstraint(Sketcher.Constraint("Equal", 21, 25))
sketch6.addConstraint(Sketcher.Constraint("Equal", 25, 29))
sketch6.addConstraint(Sketcher.Constraint("Equal", 29, 33))
sketch6.addConstraint(Sketcher.Constraint("Radius", 2, 100.0))
sketch6.addConstraint(Sketcher.Constraint("DistanceX", 0, 2, 0, 1, 5.0))
sketch6.addConstraint(Sketcher.Constraint("DistanceX", 0, 2, -1, 1, 80.0))
sketch6.addConstraint(Sketcher.Constraint("DistanceX", -1, 1, 8, 2, 65.0))
sketch6.addConstraint(Sketcher.Constraint("DistanceX", -1, 1, 12, 2, 45.0))
sketch6.addConstraint(Sketcher.Constraint("DistanceX", -1, 1, 16, 2, 25.0))
sketch6.addConstraint(Sketcher.Constraint("DistanceY", 3, 2, 3, 1, 64.884912))
pocket4 = body.newObject("PartDesign::Pocket", "Pocket003")
pocket4.Profile = sketch6
pocket4.Length = 3
pocket4.Reversed = True

# Sketch on XY plane
sketch7 = body.newObject("Sketcher::SketchObject", "Sketch006")
sketch7.AttachmentSupport = (doc.getObject("XY_Plane"), [""])
sketch7.MapMode = "FlatFace"
sketch7.AttachmentOffset = App.Placement(V(0, 0, -125), App.Rotation())
add_polygon(sketch7, [(-125, 10), (-125, 0), (-142.320508, 0)])  # lines 0-2
add_polygon(sketch7, [(125, 0), (125, 10), (142.320508, 0)])  # lines 3-5
sketch7.addConstraint(Sketcher.Constraint("Vertical", 0))
sketch7.addConstraint(Sketcher.Constraint("Horizontal", 1))
sketch7.addConstraint(Sketcher.Constraint("Vertical", 3))
sketch7.addConstraint(Sketcher.Constraint("Horizontal", 5))
sketch7.addConstraint(Sketcher.Constraint("Symmetric", 1, 2, 4, 2, -1, 1))
sketch7.addConstraint(Sketcher.Constraint("Symmetric", 2, 2, 3, 2, -2))
sketch7.addConstraint(Sketcher.Constraint("PointOnObject", 0, 2, -1))
sketch7.addConstraint(Sketcher.Constraint("DistanceY", 0, 2, 0, 1, 10.0))
sketch7.addConstraint(Sketcher.Constraint("Angle", 2, Q("30 deg")))
sketch7.addConstraint(Sketcher.Constraint("DistanceX", 0, 2, -1, 1, 125.0))
pad3 = body.newObject("PartDesign::Pad", "Pad002")
pad3.Profile = sketch7
pad3.Length = 125

# Sketch on XZ plane
sketch8 = body.newObject("Sketcher::SketchObject", "Sketch007")
sketch8.AttachmentSupport = (doc.getObject("XZ_Plane"), [""])
sketch8.MapMode = "FlatFace"
add_polygon(sketch8, [(-92.320508, -55.404069), (-92.320508, -125), (-62.320508, -125), (-62.320508, -55.404069)])  # lines 0-3
add_polygon(sketch8, [(-17.320508, -55.404069), (-17.320508, -125), (12.679492, -125), (12.679492, -55.404069)])  # lines 4-7
add_polygon(sketch8, [(57.679492, -55.404069), (57.679492, -125), (87.679492, -125), (87.679492, -55.404069)])  # lines 8-11
sketch8.addConstraint(Sketcher.Constraint("Vertical", 0))
sketch8.addConstraint(Sketcher.Constraint("Horizontal", 1))
sketch8.addConstraint(Sketcher.Constraint("Vertical", 2))
sketch8.addConstraint(Sketcher.Constraint("Horizontal", 3))
sketch8.addConstraint(Sketcher.Constraint("Vertical", 4))
sketch8.addConstraint(Sketcher.Constraint("Horizontal", 5))
sketch8.addConstraint(Sketcher.Constraint("Vertical", 6))
sketch8.addConstraint(Sketcher.Constraint("Horizontal", 7))
sketch8.addConstraint(Sketcher.Constraint("Vertical", 8))
sketch8.addConstraint(Sketcher.Constraint("Horizontal", 9))
sketch8.addConstraint(Sketcher.Constraint("Vertical", 10))
sketch8.addConstraint(Sketcher.Constraint("Horizontal", 11))
sketch8.addConstraint(Sketcher.Constraint("Horizontal", 1, 2, 4, 2))
sketch8.addConstraint(Sketcher.Constraint("Horizontal", 3, 2, 6, 2))
sketch8.addConstraint(Sketcher.Constraint("Horizontal", 5, 2, 8, 2))
sketch8.addConstraint(Sketcher.Constraint("Horizontal", 7, 2, 10, 2))
sketch8.addConstraint(Sketcher.Constraint("Equal", 3, 5))
sketch8.addConstraint(Sketcher.Constraint("Equal", 7, 9))
sketch8.addConstraint(Sketcher.Constraint("DistanceX", 1, 1, 1, 2, 30.0))
sketch8.addConstraint(Sketcher.Constraint("DistanceY", 0, 2, -1, 1, 125.0))
sketch8.addConstraint(Sketcher.Constraint("DistanceX", 1, 2, 4, 2, 45.0))
sketch8.addConstraint(Sketcher.Constraint("DistanceX", 5, 2, 8, 2, 45.0))
sketch8.addConstraint(Sketcher.Constraint("DistanceY", 0, 2, 0, 1, 69.595931))
sketch8.addConstraint(Sketcher.Constraint("DistanceX", 0, 2, -1, 1, 92.320508))
pocket5 = body.newObject("PartDesign::Pocket", "Pocket004")
pocket5.Profile = sketch8
pocket5.Length = 5

# Sketch on XZ plane
sketch9 = body.newObject("Sketcher::SketchObject", "Sketch008")
sketch9.AttachmentSupport = (doc.getObject("XZ_Plane"), [""])
sketch9.MapMode = "FlatFace"
sketch9.AttachmentOffset = App.Placement(V(0, 0, -10), App.Rotation())
add_polygon(sketch9, [(-110.517398, -110), (-110.517398, -99.576625), (-100, -99.576625), (-100, -110)])  # lines 0-3
add_polygon(sketch9, [(99.46228, -25.034682), (99.46228, -14.611307), (109.979678, -14.611307), (109.979678, -25.034682)])  # lines 4-7
add_polygon(sketch9, [(-110.413624, -24.987671), (-110.413624, -14.564296), (-99.896226, -14.564296), (-99.896226, -24.987671)])  # lines 8-11
add_polygon(sketch9, [(99.486298, -109.998817), (99.486298, -99.575442), (110.003696, -99.575442), (110.003696, -109.998817)])  # lines 12-15
sketch9.addConstraint(Sketcher.Constraint("Vertical", 0))
sketch9.addConstraint(Sketcher.Constraint("Horizontal", 1))
sketch9.addConstraint(Sketcher.Constraint("Vertical", 2))
sketch9.addConstraint(Sketcher.Constraint("Horizontal", 3))
sketch9.addConstraint(Sketcher.Constraint("Vertical", 4))
sketch9.addConstraint(Sketcher.Constraint("Horizontal", 5))
sketch9.addConstraint(Sketcher.Constraint("Vertical", 6))
sketch9.addConstraint(Sketcher.Constraint("Horizontal", 7))
sketch9.addConstraint(Sketcher.Constraint("Vertical", 8))
sketch9.addConstraint(Sketcher.Constraint("Horizontal", 9))
sketch9.addConstraint(Sketcher.Constraint("Vertical", 10))
sketch9.addConstraint(Sketcher.Constraint("Horizontal", 11))
sketch9.addConstraint(Sketcher.Constraint("Vertical", 12))
sketch9.addConstraint(Sketcher.Constraint("Horizontal", 13))
sketch9.addConstraint(Sketcher.Constraint("Vertical", 14))
sketch9.addConstraint(Sketcher.Constraint("Horizontal", 15))
sketch9.addConstraint(Sketcher.Constraint("Equal", 3, 5))
sketch9.addConstraint(Sketcher.Constraint("Equal", 7, 9))
sketch9.addConstraint(Sketcher.Constraint("Equal", 11, 13))
sketch9.addConstraint(Sketcher.Constraint("Equal", 2, 4))
sketch9.addConstraint(Sketcher.Constraint("Equal", 6, 8))
sketch9.addConstraint(Sketcher.Constraint("Equal", 10, 12))
sketch9.addConstraint(Sketcher.Constraint("DistanceX", 1, 2, -1, 1, 100.0))
sketch9.addConstraint(Sketcher.Constraint("DistanceY", 2, 2, -1, 1, 110.0))
sketch9.addConstraint(Sketcher.Constraint("DistanceX", -1, 1, 12, 2, 99.486298))
sketch9.addConstraint(Sketcher.Constraint("DistanceX", 1, 1, 1, 2, 10.517398))
sketch9.addConstraint(Sketcher.Constraint("DistanceY", 0, 1, 0, 2, 10.423375))
sketch9.addConstraint(Sketcher.Constraint("DistanceX", -1, 1, 4, 2, 99.46228))
sketch9.addConstraint(Sketcher.Constraint("DistanceY", 6, 2, -1, 1, 25.034682))
sketch9.addConstraint(Sketcher.Constraint("DistanceY", 10, 2, -1, 1, 24.987671))
sketch9.addConstraint(Sketcher.Constraint("DistanceY", 12, 2, -1, 1, 99.575442))
sketch9.addConstraint(Sketcher.Constraint("DistanceX", 0, 2, 9, 2, 10.621172))
pocket6 = body.newObject("PartDesign::Pocket", "Pocket005")
pocket6.Profile = sketch9
pocket6.Type = "ThroughAll"
pocket6.Reversed = True

doc.recompute()
